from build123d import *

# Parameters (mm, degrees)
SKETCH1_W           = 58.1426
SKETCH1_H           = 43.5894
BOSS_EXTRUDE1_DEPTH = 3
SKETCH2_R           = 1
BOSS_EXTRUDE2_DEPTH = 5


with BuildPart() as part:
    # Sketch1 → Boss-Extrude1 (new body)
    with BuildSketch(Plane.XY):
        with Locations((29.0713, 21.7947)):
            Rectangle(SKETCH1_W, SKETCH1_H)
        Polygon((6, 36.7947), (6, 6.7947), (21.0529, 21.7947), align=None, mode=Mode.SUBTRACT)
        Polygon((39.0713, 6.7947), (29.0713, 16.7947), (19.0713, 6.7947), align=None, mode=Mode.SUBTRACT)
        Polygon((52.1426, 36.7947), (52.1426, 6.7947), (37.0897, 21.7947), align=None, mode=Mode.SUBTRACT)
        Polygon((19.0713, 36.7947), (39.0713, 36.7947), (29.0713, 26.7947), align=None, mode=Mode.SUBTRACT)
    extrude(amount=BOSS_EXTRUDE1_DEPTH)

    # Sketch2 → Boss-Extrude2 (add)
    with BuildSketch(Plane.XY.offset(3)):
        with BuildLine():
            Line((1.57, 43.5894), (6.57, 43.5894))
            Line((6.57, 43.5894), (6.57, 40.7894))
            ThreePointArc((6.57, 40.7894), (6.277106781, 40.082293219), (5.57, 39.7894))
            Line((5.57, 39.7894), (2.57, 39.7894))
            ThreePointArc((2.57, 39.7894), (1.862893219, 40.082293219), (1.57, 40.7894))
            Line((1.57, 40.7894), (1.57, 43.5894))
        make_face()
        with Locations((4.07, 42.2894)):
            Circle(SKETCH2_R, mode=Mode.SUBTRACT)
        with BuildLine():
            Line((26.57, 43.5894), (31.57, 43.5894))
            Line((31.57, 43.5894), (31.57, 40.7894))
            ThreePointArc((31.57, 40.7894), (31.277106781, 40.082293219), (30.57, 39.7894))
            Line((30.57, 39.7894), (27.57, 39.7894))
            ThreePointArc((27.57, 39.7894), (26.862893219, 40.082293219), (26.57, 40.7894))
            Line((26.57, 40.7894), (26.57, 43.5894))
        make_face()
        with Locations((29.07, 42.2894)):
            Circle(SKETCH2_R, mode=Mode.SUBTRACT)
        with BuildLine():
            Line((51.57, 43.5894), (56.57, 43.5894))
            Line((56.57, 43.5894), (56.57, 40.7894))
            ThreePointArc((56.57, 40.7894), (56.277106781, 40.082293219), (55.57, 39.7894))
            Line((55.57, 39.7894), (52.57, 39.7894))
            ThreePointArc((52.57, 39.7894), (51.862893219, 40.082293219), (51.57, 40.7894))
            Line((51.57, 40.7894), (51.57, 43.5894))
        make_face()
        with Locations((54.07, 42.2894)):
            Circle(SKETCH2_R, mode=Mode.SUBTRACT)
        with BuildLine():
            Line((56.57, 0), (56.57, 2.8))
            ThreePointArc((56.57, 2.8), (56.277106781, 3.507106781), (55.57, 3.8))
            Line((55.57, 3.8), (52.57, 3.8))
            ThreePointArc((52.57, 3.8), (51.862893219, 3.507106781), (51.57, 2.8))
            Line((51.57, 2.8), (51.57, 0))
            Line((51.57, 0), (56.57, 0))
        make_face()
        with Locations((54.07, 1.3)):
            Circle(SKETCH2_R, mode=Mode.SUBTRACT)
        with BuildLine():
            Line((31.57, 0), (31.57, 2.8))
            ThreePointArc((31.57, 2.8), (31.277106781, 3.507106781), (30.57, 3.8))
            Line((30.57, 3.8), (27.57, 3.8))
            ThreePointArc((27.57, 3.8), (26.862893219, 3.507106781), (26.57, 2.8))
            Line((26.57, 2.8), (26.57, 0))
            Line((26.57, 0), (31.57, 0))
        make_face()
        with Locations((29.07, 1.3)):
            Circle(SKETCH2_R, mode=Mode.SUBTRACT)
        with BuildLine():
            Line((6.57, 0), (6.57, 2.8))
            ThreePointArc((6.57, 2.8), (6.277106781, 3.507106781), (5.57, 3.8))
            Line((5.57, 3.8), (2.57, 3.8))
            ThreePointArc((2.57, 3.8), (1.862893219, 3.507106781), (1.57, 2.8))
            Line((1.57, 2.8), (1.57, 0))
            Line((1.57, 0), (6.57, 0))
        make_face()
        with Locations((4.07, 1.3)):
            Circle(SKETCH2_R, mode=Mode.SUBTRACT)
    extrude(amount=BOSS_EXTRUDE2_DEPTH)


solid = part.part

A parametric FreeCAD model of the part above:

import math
import FreeCAD as App
import Part
import Sketcher

V = App.Vector
Q = App.Units.Quantity

doc = App.newDocument("Part")
params = doc.addObject("Spreadsheet::Sheet", "Params")
for row, (alias, value) in enumerate([
    ("sketch1_width", "20 mm"),
    ("sketch1_height", "30 mm"),
    ("pad1_length", "3 mm"),
    ("sketch2_diameter", "2 mm"),
    ("sketch2_width", "5 mm"),
    ("sketch2_height", "2.8 mm"),
    ("pad2_length", "5 mm"),
], start=1):
    params.set(f"A{row}", alias)
    params.set(f"B{row}", "=" + value)
    params.setAlias(f"B{row}", alias)

body = doc.addObject("PartDesign::Body", "Body")

# Sketch on XY plane
sketch1 = body.newObject("Sketcher::SketchObject", "Sketch")
sketch1.AttachmentSupport = (doc.getObject("XY_Plane"), [""])
sketch1.MapMode = "FlatFace"
sketch1.addGeometry([
    Part.LineSegment(V(0, 44, 0), V(0, 0, 0)),  # 0
    Part.LineSegment(V(0, 0, 0), V(58, 0, 0)),  # 1
    Part.LineSegment(V(58, 0, 0), V(58, 44, 0)),  # 2
    Part.LineSegment(V(58, 44, 0), V(0, 44, 0)),  # 3
    Part.LineSegment(V(29, 17, 0), V(39, 7, 0)),  # 4
    Part.LineSegment(V(39, 7, 0), V(19, 7, 0)),  # 5
    Part.LineSegment(V(19, 7, 0), V(29, 17, 0)),  # 6
    Part.LineSegment(V(6, 7, 0), V(6, 37, 0)),  # 7
    Part.LineSegment(V(6, 37, 0), V(21, 22, 0)),  # 8
    Part.LineSegment(V(21, 22, 0), V(6, 7, 0)),  # 9
    Part.LineSegment(V(37, 22, 0), V(52, 37, 0)),  # 10
    Part.LineSegment(V(52, 37, 0), V(52, 7, 0)),  # 11
    Part.LineSegment(V(52, 7, 0), V(37, 22, 0)),  # 12
    Part.LineSegment(V(29, 27, 0), V(19, 37, 0)),  # 13
    Part.LineSegment(V(19, 37, 0), V(39, 37, 0)),  # 14
    Part.LineSegment(V(39, 37, 0), V(29, 27, 0)),  # 15
], False)
sketch1.addConstraint([
    Sketcher.Constraint("Coincident", 0, 2, 1, 1),
    Sketcher.Constraint("Coincident", 1, 2, 2, 1),
    Sketcher.Constraint("Coincident", 2, 2, 3, 1),
    Sketcher.Constraint("Coincident", 3, 2, 0, 1),
    Sketcher.Constraint("Coincident", 4, 2, 5, 1),
    Sketcher.Constraint("Coincident", 5, 2, 6, 1),
    Sketcher.Constraint("Coincident", 6, 2, 4, 1),
    Sketcher.Constraint("Coincident", 7, 2, 8, 1),
    Sketcher.Constraint("Coincident", 8, 2, 9, 1),
    Sketcher.Constraint("Coincident", 9, 2, 7, 1),
    Sketcher.Constraint("Coincident", 10, 2, 11, 1),
    Sketcher.Constraint("Coincident", 11, 2, 12, 1),
    Sketcher.Constraint("Coincident", 12, 2, 10, 1),
    Sketcher.Constraint("Coincident", 13, 2, 14, 1),
    Sketcher.Constraint("Coincident", 14, 2, 15, 1),
    Sketcher.Constraint("Coincident", 15, 2, 13, 1),
    Sketcher.Constraint("Vertical", 0),
    Sketcher.Constraint("Horizontal", 1),
    Sketcher.Constraint("Vertical", 2),
    Sketcher.Constraint("Horizontal", 3),
    Sketcher.Constraint("Horizontal", 5),
    Sketcher.Constraint("Vertical", 7),
    Sketcher.Constraint("Vertical", 11),
    Sketcher.Constraint("Horizontal", 14),
    Sketcher.Constraint("Coincident", 0, 2, -1, 1),
    Sketcher.Constraint("Perpendicular", 4, 6),
    Sketcher.Constraint("Parallel", 9, 10),
    Sketcher.Constraint("Parallel", 8, 12),
    Sketcher.Constraint("Perpendicular", 6, 13),
    Sketcher.Constraint("Perpendicular", 13, 15),
    Sketcher.Constraint("Horizontal", 5, 2, 9, 2),
    Sketcher.Constraint("Horizontal", 7, 2, 10, 2),
    Sketcher.Constraint("Horizontal", 9, 2, 11, 2),
    Sketcher.Constraint("Horizontal", 8, 2, 12, 2),
    Sketcher.Constraint("Horizontal", 10, 2, 13, 2),
    Sketcher.Constraint("Vertical", 5, 2, 13, 2),
    Sketcher.Constraint("Vertical", 4, 2, 14, 2),
    Sketcher.Constraint("Vertical", 6, 2, 15, 2),
    Sketcher.Constraint("DistanceX", 5, 2, 5, 1, Q("20 mm")),
    Sketcher.Constraint("DistanceY", 7, 1, 7, 2, Q("30 mm")),
    Sketcher.Constraint("DistanceX", -1, 1, 7, 2, Q("6 mm")),
    Sketcher.Constraint("DistanceX", 10, 2, 2, 2, Q("6 mm")),
    Sketcher.Constraint("DistanceX", 1, 1, 1, 2, Q("58.1426 mm")),
    Sketcher.Constraint("DistanceY", 0, 2, 0, 1, Q("43.5894 mm")),
    Sketcher.Constraint("DistanceX", -1, 1, 4, 2, Q("39.0713 mm")),
    Sketcher.Constraint("DistanceY", -1, 1, 4, 2, Q("6.7947 mm")),
    Sketcher.Constraint("DistanceX", -1, 1, 8, 2, Q("21.0529 mm")),
])
sketch1.setExpression("Constraints[38]", "Params.sketch1_width")
sketch1.setExpression("Constraints[39]", "Params.sketch1_height")
pad1 = body.newObject("PartDesign::Pad", "Pad")
pad1.Profile = sketch1
pad1.setExpression("Length", "Params.pad1_length")

# Sketch on XY plane
sketch2 = body.newObject("Sketcher::SketchObject", "Sketch001")
sketch2.AttachmentSupport = (doc.getObject("XY_Plane"), [""])
sketch2.MapMode = "FlatFace"
sketch2.AttachmentOffset = App.Placement(V(0, 0, 3), App.Rotation())
sketch2.addGeometry([
    Part.LineSegment(V(6.6, 43.6, 0), V(1.6, 43.6, 0)),  # 0
    Part.LineSegment(V(1.6, 43.6, 0), V(1.6, 40.8, 0)),  # 1
    Part.ArcOfCircle(Part.Circle(V(2.6, 40.8, 0), V(0, 0, 1), 1), math.radians(-180), math.radians(-90)),  # 2
    Part.LineSegment(V(2.6, 39.8, 0), V(5.6, 39.8, 0)),  # 3
    Part.ArcOfCircle(Part.Circle(V(5.6, 40.8, 0), V(0, 0, 1), 1), math.radians(-90), math.radians(0)),  # 4
    Part.LineSegment(V(6.6, 40.8, 0), V(6.6, 43.6, 0)),  # 5
    Part.Circle(V(4.1, 42.3, 0), V(0, 0, 1), 1),  # 6
    Part.LineSegment(V(31.6, 43.6, 0), V(26.6, 43.6, 0)),  # 7
    Part.LineSegment(V(26.6, 43.6, 0), V(26.6, 40.8, 0)),  # 8
    Part.ArcOfCircle(Part.Circle(V(27.6, 40.8, 0), V(0, 0, 1), 1), math.radians(-180), math.radians(-90)),  # 9
    Part.LineSegment(V(27.6, 39.8, 0), V(30.6, 39.8, 0)),  # 10
    Part.ArcOfCircle(Part.Circle(V(30.6, 40.8, 0), V(0, 0, 1), 1), math.radians(-90), math.radians(0)),  # 11
    Part.LineSegment(V(31.6, 40.8, 0), V(31.6, 43.6, 0)),  # 12
    Part.Circle(V(29.1, 42.3, 0), V(0, 0, 1), 1),  # 13
    Part.LineSegment(V(56.6, 43.6, 0), V(51.6, 43.6, 0)),  # 14
    Part.LineSegment(V(51.6, 43.6, 0), V(51.6, 40.8, 0)),  # 15
    Part.ArcOfCircle(Part.Circle(V(52.6, 40.8, 0), V(0, 0, 1), 1), math.radians(-180), math.radians(-90)),  # 16
    Part.LineSegment(V(52.6, 39.8, 0), V(55.6, 39.8, 0)),  # 17
    Part.ArcOfCircle(Part.Circle(V(55.6, 40.8, 0), V(0, 0, 1), 1), math.radians(-90), math.radians(0)),  # 18
    Part.LineSegment(V(56.6, 40.8, 0), V(56.6, 43.6, 0)),  # 19
    Part.Circle(V(54.1, 42.3, 0), V(0, 0, 1), 1),  # 20
    Part.LineSegment(V(56.6, 0, 0), V(56.6, 2.8, 0)),  # 21
    Part.ArcOfCircle(Part.Circle(V(55.6, 2.8, 0), V(0, 0, 1), 1), math.radians(0), math.radians(90)),  # 22
    Part.LineSegment(V(55.6, 3.8, 0), V(52.6, 3.8, 0)),  # 23
    Part.ArcOfCircle(Part.Circle(V(52.6, 2.8, 0), V(0, 0, 1), 1), math.radians(90), math.radians(180)),  # 24
    Part.LineSegment(V(51.6, 2.8, 0), V(51.6, 0, 0)),  # 25
    Part.LineSegment(V(51.6, 0, 0), V(56.6, 0, 0)),  # 26
    Part.Circle(V(54.1, 1.3, 0), V(0, 0, 1), 1),  # 27
    Part.LineSegment(V(31.6, 0, 0), V(31.6, 2.8, 0)),  # 28
    Part.ArcOfCircle(Part.Circle(V(30.6, 2.8, 0), V(0, 0, 1), 1), math.radians(0), math.radians(90)),  # 29
    Part.LineSegment(V(30.6, 3.8, 0), V(27.6, 3.8, 0)),  # 30
    Part.ArcOfCircle(Part.Circle(V(27.6, 2.8, 0), V(0, 0, 1), 1), math.radians(90), math.radians(180)),  # 31
    Part.LineSegment(V(26.6, 2.8, 0), V(26.6, 0, 0)),  # 32
    Part.LineSegment(V(26.6, 0, 0), V(31.6, 0, 0)),  # 33
    Part.Circle(V(29.1, 1.3, 0), V(0, 0, 1), 1),  # 34
    Part.LineSegment(V(6.6, 0, 0), V(6.6, 2.8, 0)),  # 35
    Part.ArcOfCircle(Part.Circle(V(5.6, 2.8, 0), V(0, 0, 1), 1), math.radians(0), math.radians(90)),  # 36
    Part.LineSegment(V(5.6, 3.8, 0), V(2.6, 3.8, 0)),  # 37
    Part.ArcOfCircle(Part.Circle(V(2.6, 2.8, 0), V(0, 0, 1), 1), math.radians(90), math.radians(180)),  # 38
    Part.LineSegment(V(1.6, 2.8, 0), V(1.6, 0, 0)),  # 39
    Part.LineSegment(V(1.6, 0, 0), V(6.6, 0, 0)),  # 40
    Part.Circle(V(4.1, 1.3, 0), V(0, 0, 1), 1),  # 41
], False)
sketch2.addConstraint([
    Sketcher.Constraint("Coincident", 0, 2, 1, 1),
    Sketcher.Constraint("Tangent", 1, 2, 2, 1),
    Sketcher.Constraint("Tangent", 2, 2, 3, 1),
    Sketcher.Constraint("Tangent", 3, 2, 4, 1),
    Sketcher.Constraint("Tangent", 4, 2, 5, 1),
    Sketcher.Constraint("Coincident", 5, 2, 0, 1),
    Sketcher.Constraint("Coincident", 7, 2, 8, 1),
    Sketcher.Constraint("Tangent", 8, 2, 9, 1),
    Sketcher.Constraint("Tangent", 9, 2, 10, 1),
    Sketcher.Constraint("Tangent", 10, 2, 11, 1),
    Sketcher.Constraint("Tangent", 11, 2, 12, 1),
    Sketcher.Constraint("Coincident", 12, 2, 7, 1),
    Sketcher.Constraint("Coincident", 14, 2, 15, 1),
    Sketcher.Constraint("Tangent", 15, 2, 16, 1),
    Sketcher.Constraint("Tangent", 16, 2, 17, 1),
    Sketcher.Constraint("Tangent", 17, 2, 18, 1),
    Sketcher.Constraint("Tangent", 18, 2, 19, 1),
    Sketcher.Constraint("Coincident", 19, 2, 14, 1),
    Sketcher.Constraint("Tangent", 21, 2, 22, 1),
    Sketcher.Constraint("Tangent", 22, 2, 23, 1),
    Sketcher.Constraint("Tangent", 23, 2, 24, 1),
    Sketcher.Constraint("Tangent", 24, 2, 25, 1),
    Sketcher.Constraint("Coincident", 25, 2, 26, 1),
    Sketcher.Constraint("Coincident", 26, 2, 21, 1),
    Sketcher.Constraint("Tangent", 28, 2, 29, 1),
    Sketcher.Constraint("Tangent", 29, 2, 30, 1),
    Sketcher.Constraint("Tangent", 30, 2, 31, 1),
    Sketcher.Constraint("Tangent", 31, 2, 32, 1),
    Sketcher.Constraint("Coincident", 32, 2, 33, 1),
    Sketcher.Constraint("Coincident", 33, 2, 28, 1),
    Sketcher.Constraint("Tangent", 35, 2, 36, 1),
    Sketcher.Constraint("Tangent", 36, 2, 37, 1),
    Sketcher.Constraint("Tangent", 37, 2, 38, 1),
    Sketcher.Constraint("Tangent", 38, 2, 39, 1),
    Sketcher.Constraint("Coincident", 39, 2, 40, 1),
    Sketcher.Constraint("Coincident", 40, 2, 35, 1),
    Sketcher.Constraint("Horizontal", 0),
    Sketcher.Constraint("Vertical", 1),
    Sketcher.Constraint("Horizontal", 3),
    Sketcher.Constraint("Vertical", 5),
    Sketcher.Constraint("Horizontal", 7),
    Sketcher.Constraint("Vertical", 8),
    Sketcher.Constraint("Horizontal", 10),
    Sketcher.Constraint("Vertical", 12),
    Sketcher.Constraint("Horizontal", 14),
    Sketcher.Constraint("Vertical", 15),
    Sketcher.Constraint("Horizontal", 17),
    Sketcher.Constraint("Vertical", 19),
    Sketcher.Constraint("Vertical", 21),
    Sketcher.Constraint("Horizontal", 23),
    Sketcher.Constraint("Vertical", 25),
    Sketcher.Constraint("Horizontal", 26),
    Sketcher.Constraint("Vertical", 28),
    Sketcher.Constraint("Horizontal", 30),
    Sketcher.Constraint("Vertical", 32),
    Sketcher.Constraint("Horizontal", 33),
    Sketcher.Constraint("Vertical", 35),
    Sketcher.Constraint("Horizontal", 37),
    Sketcher.Constraint("Vertical", 39),
    Sketcher.Constraint("Horizontal", 40),
    Sketcher.Constraint("Equal", 2, 4),
    Sketcher.Constraint("Equal", 4, 6),
    Sketcher.Constraint("Equal", 6, 9),
    Sketcher.Constraint("Equal", 9, 11),
    Sketcher.Constraint("Equal", 11, 13),
    Sketcher.Constraint("Equal", 13, 16),
    Sketcher.Constraint("Equal", 16, 18),
    Sketcher.Constraint("Equal", 18, 20),
    Sketcher.Constraint("Equal", 20, 22),
    Sketcher.Constraint("Equal", 22, 24),
    Sketcher.Constraint("Equal", 24, 27),
    Sketcher.Constraint("Equal", 27, 29),
    Sketcher.Constraint("Equal", 29, 31),
    Sketcher.Constraint("Equal", 31, 34),
    Sketcher.Constraint("Equal", 34, 36),
    Sketcher.Constraint("Equal", 36, 38),
    Sketcher.Constraint("Equal", 38, 41),
    Sketcher.Constraint("PointOnObject", 25, 2, -1),
    Sketcher.Constraint("PointOnObject", 32, 2, -1),
    Sketcher.Constraint("PointOnObject", 39, 2, -1),
    Sketcher.Constraint("Horizontal", 4, 3, 9, 3),
    Sketcher.Constraint("Horizontal", 6, 3, 13, 3),
    Sketcher.Constraint("Horizontal", 11, 3, 16, 3),
    Sketcher.Constraint("Horizontal", 13, 3, 20, 3),
    Sketcher.Constraint("Horizontal", 24, 3, 29, 3),
    Sketcher.Constraint("Horizontal", 27, 3, 34, 3),
    Sketcher.Constraint("Horizontal", 31, 3, 36, 3),
    Sketcher.Constraint("Horizontal", 34, 3, 41, 3),
    Sketcher.Constraint("Horizontal", 5, 2, 7, 2),
    Sketcher.Constraint("Horizontal", 12, 2, 14, 2),
    Sketcher.Constraint("Vertical", 18, 3, 22, 3),
    Sketcher.Constraint("Vertical", 16, 3, 24, 3),
    Sketcher.Constraint("Vertical", 20, 3, 27, 3),
    Sketcher.Constraint("Vertical", 11, 3, 29, 3),
    Sketcher.Constraint("Vertical", 9, 3, 31, 3),
    Sketcher.Constraint("Vertical", 13, 3, 34, 3),
    Sketcher.Constraint("Vertical", 4, 3, 36, 3),
    Sketcher.Constraint("Vertical", 2, 3, 38, 3),
    Sketcher.Constraint("Vertical", 6, 3, 41, 3),
    Sketcher.Constraint("Equal", 0, 7),
    Sketcher.Constraint("Equal", 7, 14),
    Sketcher.Constraint("Equal", 19, 21),
    Sketcher.Constraint("Diameter", 6, Q("2 mm")),
    Sketcher.Constraint("DistanceX", 0, 2, 0, 1, Q("5 mm")),
    Sketcher.Constraint("DistanceY", 1, 2, 1, 1, Q("2.8 mm")),
    Sketcher.Constraint("DistanceX", 4, 3, 9, 3, Q("22 mm")),
    Sketcher.Constraint("DistanceX", 6, 3, 13, 3, Q("25 mm")),
    Sketcher.Constraint("DistanceX", 11, 3, 16, 3, Q("22 mm")),
    Sketcher.Constraint("DistanceX", 13, 3, 20, 3, Q("25 mm")),
    Sketcher.Constraint("DistanceY", -1, 1, 27, 3, Q("1.3 mm")),
    Sketcher.Constraint("DistanceX", 6, 3, 4, 3, Q("1.5 mm")),
    Sketcher.Constraint("DistanceY", 4, 3, 6, 3, Q("1.5 mm")),
    Sketcher.Constraint("DistanceX", -1, 1, 2, 3, Q("2.57 mm")),
    Sketcher.Constraint("DistanceY", -1, 1, 2, 3, Q("40.7894 mm")),
])
sketch2.setExpression("Constraints[102]", "Params.sketch2_diameter")
sketch2.setExpression("Constraints[103]", "Params.sketch2_width")
sketch2.setExpression("Constraints[104]", "Params.sketch2_height")
pad2 = body.newObject("PartDesign::Pad", "Pad001")
pad2.Profile = sketch2
pad2.setExpression("Length", "Params.pad2_length")

doc.recompute()
